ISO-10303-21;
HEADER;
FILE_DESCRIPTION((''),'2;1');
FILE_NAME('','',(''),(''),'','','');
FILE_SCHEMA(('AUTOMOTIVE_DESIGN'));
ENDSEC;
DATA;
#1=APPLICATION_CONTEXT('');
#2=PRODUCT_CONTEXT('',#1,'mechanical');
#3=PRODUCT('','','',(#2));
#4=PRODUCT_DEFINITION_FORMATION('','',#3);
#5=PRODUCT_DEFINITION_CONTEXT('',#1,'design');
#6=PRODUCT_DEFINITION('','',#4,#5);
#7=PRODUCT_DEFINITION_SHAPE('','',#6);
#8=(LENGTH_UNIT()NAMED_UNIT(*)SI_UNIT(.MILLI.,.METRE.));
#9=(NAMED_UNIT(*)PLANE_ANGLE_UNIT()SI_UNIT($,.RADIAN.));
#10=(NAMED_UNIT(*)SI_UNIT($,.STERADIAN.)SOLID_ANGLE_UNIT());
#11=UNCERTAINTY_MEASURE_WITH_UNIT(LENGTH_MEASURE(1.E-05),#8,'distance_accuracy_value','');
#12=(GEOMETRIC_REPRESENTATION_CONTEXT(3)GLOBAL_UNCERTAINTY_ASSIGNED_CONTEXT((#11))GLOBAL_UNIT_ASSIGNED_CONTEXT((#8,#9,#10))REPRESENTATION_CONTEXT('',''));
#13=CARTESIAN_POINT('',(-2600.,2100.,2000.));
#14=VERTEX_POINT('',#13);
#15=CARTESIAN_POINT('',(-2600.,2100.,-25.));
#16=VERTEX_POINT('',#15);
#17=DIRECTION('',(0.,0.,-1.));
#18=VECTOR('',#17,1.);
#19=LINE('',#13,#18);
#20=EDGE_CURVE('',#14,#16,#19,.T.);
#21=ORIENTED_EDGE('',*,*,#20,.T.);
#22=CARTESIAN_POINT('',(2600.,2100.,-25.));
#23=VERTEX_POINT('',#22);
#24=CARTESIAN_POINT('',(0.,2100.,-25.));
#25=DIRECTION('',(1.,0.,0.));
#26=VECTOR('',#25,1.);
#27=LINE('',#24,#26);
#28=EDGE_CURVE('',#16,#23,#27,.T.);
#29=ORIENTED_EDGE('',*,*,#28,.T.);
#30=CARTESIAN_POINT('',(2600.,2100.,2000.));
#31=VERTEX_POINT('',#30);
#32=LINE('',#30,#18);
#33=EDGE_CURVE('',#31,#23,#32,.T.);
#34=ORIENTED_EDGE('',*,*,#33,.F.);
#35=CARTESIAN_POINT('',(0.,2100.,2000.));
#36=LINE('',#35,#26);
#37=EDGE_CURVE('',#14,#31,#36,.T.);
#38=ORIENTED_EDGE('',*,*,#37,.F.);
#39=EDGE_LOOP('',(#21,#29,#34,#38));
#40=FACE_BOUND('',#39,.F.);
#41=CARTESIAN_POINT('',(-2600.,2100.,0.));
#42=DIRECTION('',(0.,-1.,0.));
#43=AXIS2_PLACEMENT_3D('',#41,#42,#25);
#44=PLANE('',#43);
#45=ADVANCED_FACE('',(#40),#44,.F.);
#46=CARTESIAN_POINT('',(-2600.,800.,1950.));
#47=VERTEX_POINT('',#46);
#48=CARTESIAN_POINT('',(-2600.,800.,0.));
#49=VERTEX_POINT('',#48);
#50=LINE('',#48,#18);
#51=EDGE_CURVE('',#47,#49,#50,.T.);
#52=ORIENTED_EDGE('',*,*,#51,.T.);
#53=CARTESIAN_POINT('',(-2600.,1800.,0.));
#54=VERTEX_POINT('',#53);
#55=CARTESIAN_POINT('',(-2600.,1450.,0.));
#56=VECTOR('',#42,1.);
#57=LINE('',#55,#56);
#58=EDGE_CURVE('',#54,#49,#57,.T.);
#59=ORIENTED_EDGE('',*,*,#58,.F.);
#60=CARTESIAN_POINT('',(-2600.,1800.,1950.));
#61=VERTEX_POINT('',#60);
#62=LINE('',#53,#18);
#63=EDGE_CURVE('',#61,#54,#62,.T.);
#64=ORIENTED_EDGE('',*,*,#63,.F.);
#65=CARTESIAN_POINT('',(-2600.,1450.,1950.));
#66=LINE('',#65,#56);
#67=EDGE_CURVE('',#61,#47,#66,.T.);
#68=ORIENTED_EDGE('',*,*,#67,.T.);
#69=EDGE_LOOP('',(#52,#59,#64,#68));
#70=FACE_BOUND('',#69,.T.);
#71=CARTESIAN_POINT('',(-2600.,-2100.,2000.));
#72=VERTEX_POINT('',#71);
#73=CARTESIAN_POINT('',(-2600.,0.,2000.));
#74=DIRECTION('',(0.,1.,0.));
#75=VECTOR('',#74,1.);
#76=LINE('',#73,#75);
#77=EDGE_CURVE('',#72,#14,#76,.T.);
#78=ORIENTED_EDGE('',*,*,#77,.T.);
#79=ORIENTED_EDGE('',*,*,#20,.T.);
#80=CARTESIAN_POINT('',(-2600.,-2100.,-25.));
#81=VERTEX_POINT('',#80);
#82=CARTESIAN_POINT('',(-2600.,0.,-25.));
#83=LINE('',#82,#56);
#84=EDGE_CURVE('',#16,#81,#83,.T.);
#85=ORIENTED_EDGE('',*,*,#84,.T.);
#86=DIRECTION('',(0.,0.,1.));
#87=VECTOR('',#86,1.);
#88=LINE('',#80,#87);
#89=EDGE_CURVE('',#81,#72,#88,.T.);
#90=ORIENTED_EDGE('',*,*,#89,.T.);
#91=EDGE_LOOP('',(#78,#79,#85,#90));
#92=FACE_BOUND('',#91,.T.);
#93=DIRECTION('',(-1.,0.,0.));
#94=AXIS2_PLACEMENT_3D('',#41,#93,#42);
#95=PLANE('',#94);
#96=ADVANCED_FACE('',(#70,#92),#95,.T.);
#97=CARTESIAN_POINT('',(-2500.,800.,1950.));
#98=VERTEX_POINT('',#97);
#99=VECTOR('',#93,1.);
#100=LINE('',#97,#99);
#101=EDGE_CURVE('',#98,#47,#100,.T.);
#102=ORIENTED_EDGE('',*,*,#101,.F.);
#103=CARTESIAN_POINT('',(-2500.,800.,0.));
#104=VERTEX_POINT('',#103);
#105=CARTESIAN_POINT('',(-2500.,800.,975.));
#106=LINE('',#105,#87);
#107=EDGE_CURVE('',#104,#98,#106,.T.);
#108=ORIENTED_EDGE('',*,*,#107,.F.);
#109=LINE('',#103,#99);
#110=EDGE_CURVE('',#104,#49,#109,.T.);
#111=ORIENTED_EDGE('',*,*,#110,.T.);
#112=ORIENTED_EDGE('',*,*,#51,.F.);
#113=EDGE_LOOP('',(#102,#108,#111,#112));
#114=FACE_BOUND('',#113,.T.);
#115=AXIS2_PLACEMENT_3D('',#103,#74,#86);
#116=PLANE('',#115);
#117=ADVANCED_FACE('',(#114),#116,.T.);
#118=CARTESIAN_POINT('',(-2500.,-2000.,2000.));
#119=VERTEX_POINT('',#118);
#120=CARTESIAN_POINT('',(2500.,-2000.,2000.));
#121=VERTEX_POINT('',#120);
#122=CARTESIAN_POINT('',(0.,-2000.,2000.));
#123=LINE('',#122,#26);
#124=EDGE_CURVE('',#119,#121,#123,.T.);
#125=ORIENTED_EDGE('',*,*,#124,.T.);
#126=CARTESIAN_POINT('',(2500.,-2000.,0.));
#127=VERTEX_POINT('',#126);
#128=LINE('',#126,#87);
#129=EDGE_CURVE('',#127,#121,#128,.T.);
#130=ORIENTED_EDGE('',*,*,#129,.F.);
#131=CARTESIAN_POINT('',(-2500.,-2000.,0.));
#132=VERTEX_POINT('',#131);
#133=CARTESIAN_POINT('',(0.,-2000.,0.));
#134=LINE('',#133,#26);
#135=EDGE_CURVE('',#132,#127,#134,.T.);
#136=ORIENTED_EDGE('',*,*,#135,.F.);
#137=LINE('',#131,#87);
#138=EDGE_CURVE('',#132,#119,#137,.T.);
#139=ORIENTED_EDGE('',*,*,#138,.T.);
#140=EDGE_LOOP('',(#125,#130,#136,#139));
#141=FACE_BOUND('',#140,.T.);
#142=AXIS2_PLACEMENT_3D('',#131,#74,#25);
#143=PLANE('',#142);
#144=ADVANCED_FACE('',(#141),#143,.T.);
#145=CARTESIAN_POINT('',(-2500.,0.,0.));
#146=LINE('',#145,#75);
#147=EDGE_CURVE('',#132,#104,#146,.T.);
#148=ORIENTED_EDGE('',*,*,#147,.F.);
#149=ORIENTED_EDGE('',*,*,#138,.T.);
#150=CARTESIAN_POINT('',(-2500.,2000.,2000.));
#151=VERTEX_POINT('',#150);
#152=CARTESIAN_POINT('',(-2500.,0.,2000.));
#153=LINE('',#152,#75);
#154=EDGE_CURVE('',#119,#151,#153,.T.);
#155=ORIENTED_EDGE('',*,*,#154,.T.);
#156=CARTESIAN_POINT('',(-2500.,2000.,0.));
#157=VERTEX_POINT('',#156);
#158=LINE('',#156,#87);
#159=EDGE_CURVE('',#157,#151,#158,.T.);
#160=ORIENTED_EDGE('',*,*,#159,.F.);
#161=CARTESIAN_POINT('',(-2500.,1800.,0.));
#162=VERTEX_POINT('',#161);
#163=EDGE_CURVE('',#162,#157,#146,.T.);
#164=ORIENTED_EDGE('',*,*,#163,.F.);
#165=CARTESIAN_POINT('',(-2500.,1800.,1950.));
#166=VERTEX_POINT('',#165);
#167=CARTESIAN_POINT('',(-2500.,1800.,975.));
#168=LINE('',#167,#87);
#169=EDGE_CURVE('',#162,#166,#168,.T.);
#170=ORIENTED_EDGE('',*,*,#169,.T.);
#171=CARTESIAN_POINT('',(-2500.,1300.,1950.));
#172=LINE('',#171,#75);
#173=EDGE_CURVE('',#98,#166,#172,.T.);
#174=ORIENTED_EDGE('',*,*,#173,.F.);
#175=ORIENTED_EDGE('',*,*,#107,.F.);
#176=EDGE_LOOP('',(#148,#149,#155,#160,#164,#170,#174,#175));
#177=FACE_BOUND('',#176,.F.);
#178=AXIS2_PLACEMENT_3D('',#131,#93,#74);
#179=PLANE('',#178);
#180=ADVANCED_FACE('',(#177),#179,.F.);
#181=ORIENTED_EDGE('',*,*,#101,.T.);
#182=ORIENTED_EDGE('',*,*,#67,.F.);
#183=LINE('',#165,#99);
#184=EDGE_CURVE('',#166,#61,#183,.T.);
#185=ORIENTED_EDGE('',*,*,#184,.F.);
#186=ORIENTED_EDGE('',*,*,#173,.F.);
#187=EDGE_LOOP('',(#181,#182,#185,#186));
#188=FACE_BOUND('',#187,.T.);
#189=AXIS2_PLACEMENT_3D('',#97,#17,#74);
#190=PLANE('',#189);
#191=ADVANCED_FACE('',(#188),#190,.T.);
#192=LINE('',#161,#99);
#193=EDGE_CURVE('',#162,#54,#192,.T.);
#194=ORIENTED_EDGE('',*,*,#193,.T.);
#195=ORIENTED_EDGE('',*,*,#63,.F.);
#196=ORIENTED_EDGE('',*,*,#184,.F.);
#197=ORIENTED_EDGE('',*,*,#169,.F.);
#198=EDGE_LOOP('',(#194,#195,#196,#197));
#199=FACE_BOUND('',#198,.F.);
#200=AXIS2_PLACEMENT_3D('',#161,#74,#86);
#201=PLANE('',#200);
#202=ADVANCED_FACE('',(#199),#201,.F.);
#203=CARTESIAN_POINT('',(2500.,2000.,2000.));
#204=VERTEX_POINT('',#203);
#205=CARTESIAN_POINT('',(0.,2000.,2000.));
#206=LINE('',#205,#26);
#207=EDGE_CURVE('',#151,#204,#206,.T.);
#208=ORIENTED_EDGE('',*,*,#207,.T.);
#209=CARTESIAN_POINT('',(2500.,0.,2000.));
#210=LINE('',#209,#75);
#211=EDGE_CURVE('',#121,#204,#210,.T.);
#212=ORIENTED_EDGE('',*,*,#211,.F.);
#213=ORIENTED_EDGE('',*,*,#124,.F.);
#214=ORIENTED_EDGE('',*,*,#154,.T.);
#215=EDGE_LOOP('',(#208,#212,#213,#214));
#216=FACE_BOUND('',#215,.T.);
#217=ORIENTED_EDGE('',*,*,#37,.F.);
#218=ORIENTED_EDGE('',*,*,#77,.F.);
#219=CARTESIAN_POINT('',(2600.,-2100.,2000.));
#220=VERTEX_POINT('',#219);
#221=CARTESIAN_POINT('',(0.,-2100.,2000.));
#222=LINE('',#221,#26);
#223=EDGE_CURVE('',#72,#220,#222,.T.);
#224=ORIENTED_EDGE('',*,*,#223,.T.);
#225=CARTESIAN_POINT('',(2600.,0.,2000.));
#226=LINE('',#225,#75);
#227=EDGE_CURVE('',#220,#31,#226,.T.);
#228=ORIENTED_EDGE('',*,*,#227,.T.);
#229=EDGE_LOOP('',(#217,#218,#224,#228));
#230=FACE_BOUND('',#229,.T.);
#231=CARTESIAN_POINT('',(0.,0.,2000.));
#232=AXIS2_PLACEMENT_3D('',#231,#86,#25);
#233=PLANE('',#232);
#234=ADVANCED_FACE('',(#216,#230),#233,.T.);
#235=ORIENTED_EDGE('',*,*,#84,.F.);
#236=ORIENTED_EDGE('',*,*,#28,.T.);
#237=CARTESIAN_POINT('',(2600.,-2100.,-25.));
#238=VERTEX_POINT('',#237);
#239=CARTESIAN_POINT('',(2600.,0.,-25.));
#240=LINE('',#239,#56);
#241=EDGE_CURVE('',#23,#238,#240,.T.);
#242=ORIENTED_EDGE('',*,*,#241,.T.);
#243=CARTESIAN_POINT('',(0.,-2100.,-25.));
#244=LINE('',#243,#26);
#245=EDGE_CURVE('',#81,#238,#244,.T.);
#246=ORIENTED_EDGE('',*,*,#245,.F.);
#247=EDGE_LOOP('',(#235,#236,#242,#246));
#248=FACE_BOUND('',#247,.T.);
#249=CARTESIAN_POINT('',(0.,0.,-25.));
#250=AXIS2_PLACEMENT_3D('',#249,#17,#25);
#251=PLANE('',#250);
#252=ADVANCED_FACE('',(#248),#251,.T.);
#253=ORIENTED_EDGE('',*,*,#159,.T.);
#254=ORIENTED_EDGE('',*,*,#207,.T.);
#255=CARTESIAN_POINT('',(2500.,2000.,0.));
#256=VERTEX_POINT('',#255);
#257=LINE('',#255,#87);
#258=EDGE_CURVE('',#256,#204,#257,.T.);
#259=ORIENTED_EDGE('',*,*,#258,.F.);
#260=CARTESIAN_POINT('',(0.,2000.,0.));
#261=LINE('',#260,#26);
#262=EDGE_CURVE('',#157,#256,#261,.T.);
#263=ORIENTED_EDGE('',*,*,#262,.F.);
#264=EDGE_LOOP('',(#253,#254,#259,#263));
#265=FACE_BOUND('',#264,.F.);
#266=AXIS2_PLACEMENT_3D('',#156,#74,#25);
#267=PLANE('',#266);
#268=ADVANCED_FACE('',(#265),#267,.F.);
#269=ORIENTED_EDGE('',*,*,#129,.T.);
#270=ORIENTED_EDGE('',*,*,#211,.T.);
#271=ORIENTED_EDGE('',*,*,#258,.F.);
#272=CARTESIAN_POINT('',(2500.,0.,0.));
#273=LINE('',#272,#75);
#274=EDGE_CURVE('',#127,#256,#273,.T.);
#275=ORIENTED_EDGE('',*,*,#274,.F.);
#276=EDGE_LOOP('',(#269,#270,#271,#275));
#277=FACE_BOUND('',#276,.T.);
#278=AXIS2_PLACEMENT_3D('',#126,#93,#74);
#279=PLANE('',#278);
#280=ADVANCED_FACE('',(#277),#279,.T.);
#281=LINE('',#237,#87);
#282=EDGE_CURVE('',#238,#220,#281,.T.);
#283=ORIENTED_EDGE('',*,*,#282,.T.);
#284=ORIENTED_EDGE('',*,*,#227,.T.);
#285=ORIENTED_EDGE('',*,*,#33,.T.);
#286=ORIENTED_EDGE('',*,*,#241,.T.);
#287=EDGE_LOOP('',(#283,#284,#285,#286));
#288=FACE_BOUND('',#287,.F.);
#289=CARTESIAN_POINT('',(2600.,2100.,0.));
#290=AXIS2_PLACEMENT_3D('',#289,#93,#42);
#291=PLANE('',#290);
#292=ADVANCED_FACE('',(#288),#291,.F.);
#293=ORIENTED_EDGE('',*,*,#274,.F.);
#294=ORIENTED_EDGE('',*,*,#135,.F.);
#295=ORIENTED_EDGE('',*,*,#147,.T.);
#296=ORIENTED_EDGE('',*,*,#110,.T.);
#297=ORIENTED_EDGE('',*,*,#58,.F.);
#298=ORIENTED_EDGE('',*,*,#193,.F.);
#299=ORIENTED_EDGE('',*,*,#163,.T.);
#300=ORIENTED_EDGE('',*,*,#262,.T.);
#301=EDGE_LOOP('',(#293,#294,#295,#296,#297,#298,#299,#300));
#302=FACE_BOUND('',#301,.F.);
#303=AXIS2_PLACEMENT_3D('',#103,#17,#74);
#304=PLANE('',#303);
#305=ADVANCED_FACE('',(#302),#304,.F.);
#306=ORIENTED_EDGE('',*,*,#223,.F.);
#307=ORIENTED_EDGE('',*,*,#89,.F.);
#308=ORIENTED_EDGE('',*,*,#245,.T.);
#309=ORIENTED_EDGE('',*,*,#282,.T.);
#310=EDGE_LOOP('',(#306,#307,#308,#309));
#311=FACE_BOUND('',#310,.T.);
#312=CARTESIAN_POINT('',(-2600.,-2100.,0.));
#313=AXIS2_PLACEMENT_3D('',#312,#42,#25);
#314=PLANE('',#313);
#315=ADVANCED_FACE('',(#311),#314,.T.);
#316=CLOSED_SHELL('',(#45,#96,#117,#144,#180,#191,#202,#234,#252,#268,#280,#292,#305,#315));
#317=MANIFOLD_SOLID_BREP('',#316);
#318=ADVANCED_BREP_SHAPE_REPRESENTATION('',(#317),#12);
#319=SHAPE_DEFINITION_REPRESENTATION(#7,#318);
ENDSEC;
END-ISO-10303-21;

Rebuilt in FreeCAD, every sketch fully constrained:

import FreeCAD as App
import Part
import Sketcher

V = App.Vector

doc = App.newDocument("Part")
params = doc.addObject("Spreadsheet::Sheet", "Params")
for row, (alias, value) in enumerate([
    ("sketch1_width", "5200 mm"),
    ("sketch1_width2", "5000 mm"),
    ("sketch1_height", "4200 mm"),
    ("sketch1_height2", "4000 mm"),
    ("pad1_length", "2000 mm"),
    ("sketch2_width", "5200 mm"),
    ("sketch2_height", "4200 mm"),
    ("pad2_length", "25 mm"),
    ("sketch3_width", "1000 mm"),
    ("sketch3_height", "1950 mm"),
    ("pocket1_length", "200 mm"),
], start=1):
    params.set(f"A{row}", alias)
    params.set(f"B{row}", "=" + value)
    params.setAlias(f"B{row}", alias)

body = doc.addObject("PartDesign::Body", "Body")

# Sketch on XY plane
sketch1 = body.newObject("Sketcher::SketchObject", "Sketch")
sketch1.AttachmentSupport = (doc.getObject("XY_Plane"), [""])
sketch1.MapMode = "FlatFace"
sketch1.addGeometry(Part.LineSegment(V(-2600, 2100, 0), V(-2600, -2100, 0)), False)
sketch1.addGeometry(Part.LineSegment(V(-2600, -2100, 0), V(2600, -2100, 0)), False)
sketch1.addGeometry(Part.LineSegment(V(2600, -2100, 0), V(2600, 2100, 0)), False)
sketch1.addGeometry(Part.LineSegment(V(2600, 2100, 0), V(-2600, 2100, 0)), False)
sketch1.addGeometry(Part.LineSegment(V(2500, -2000, 0), V(-2500, -2000, 0)), False)
sketch1.addGeometry(Part.LineSegment(V(-2500, -2000, 0), V(-2500, 2000, 0)), False)
sketch1.addGeometry(Part.LineSegment(V(-2500, 2000, 0), V(2500, 2000, 0)), False)
sketch1.addGeometry(Part.LineSegment(V(2500, 2000, 0), V(2500, -2000, 0)), False)
sketch1.addConstraint(Sketcher.Constraint("Coincident", 0, 2, 1, 1))
sketch1.addConstraint(Sketcher.Constraint("Coincident", 1, 2, 2, 1))
sketch1.addConstraint(Sketcher.Constraint("Coincident", 2, 2, 3, 1))
sketch1.addConstraint(Sketcher.Constraint("Coincident", 3, 2, 0, 1))
sketch1.addConstraint(Sketcher.Constraint("Coincident", 4, 2, 5, 1))
sketch1.addConstraint(Sketcher.Constraint("Coincident", 5, 2, 6, 1))
sketch1.addConstraint(Sketcher.Constraint("Coincident", 6, 2, 7, 1))
sketch1.addConstraint(Sketcher.Constraint("Coincident", 7, 2, 4, 1))
sketch1.addConstraint(Sketcher.Constraint("Vertical", 0))
sketch1.addConstraint(Sketcher.Constraint("Horizontal", 1))
sketch1.addConstraint(Sketcher.Constraint("Vertical", 2))
sketch1.addConstraint(Sketcher.Constraint("Horizontal", 3))
sketch1.addConstraint(Sketcher.Constraint("Horizontal", 4))
sketch1.addConstraint(Sketcher.Constraint("Vertical", 5))
sketch1.addConstraint(Sketcher.Constraint("Horizontal", 6))
sketch1.addConstraint(Sketcher.Constraint("Vertical", 7))
sketch1.addConstraint(Sketcher.Constraint("Symmetric", 0, 2, 2, 2, -1, 1))
sketch1.addConstraint(Sketcher.Constraint("Symmetric", 4, 2, 6, 2, -1, 1))
sketch1.addConstraint(Sketcher.Constraint("DistanceX", 1, 1, 1, 2, 5200.0))
sketch1.addConstraint(Sketcher.Constraint("DistanceX", 4, 2, 4, 1, 5000.0))
sketch1.addConstraint(Sketcher.Constraint("DistanceY", 0, 2, 0, 1, 4200.0))
sketch1.addConstraint(Sketcher.Constraint("DistanceY", 5, 1, 5, 2, 4000.0))
sketch1.setExpression("Constraints[18]", "Params.sketch1_width")
sketch1.setExpression("Constraints[19]", "Params.sketch1_width2")
sketch1.setExpression("Constraints[20]", "Params.sketch1_height")
sketch1.setExpression("Constraints[21]", "Params.sketch1_height2")
pad1 = body.newObject("PartDesign::Pad", "Pad")
pad1.Profile = sketch1
pad1.setExpression("Length", "Params.pad1_length")

# Sketch on XY plane
sketch2 = body.newObject("Sketcher::SketchObject", "Sketch001")
sketch2.AttachmentSupport = (doc.getObject("XY_Plane"), [""])
sketch2.MapMode = "FlatFace"
sketch2.addGeometry(Part.LineSegment(V(-2600, -2100, 0), V(-2600, 2100, 0)), False)
sketch2.addGeometry(Part.LineSegment(V(-2600, 2100, 0), V(2600, 2100, 0)), False)
sketch2.addGeometry(Part.LineSegment(V(2600, 2100, 0), V(2600, -2100, 0)), False)
sketch2.addGeometry(Part.LineSegment(V(2600, -2100, 0), V(-2600, -2100, 0)), False)
sketch2.addConstraint(Sketcher.Constraint("Coincident", 0, 2, 1, 1))
sketch2.addConstraint(Sketcher.Constraint("Coincident", 1, 2, 2, 1))
sketch2.addConstraint(Sketcher.Constraint("Coincident", 2, 2, 3, 1))
sketch2.addConstraint(Sketcher.Constraint("Coincident", 3, 2, 0, 1))
sketch2.addConstraint(Sketcher.Constraint("Vertical", 0))
sketch2.addConstraint(Sketcher.Constraint("Horizontal", 1))
sketch2.addConstraint(Sketcher.Constraint("Vertical", 2))
sketch2.addConstraint(Sketcher.Constraint("Horizontal", 3))
sketch2.addConstraint(Sketcher.Constraint("Symmetric", 0, 2, 2, 2, -1, 1))
sketch2.addConstraint(Sketcher.Constraint("DistanceX", 1, 1, 1, 2, 5200.0))
sketch2.addConstraint(Sketcher.Constraint("DistanceY", 0, 1, 0, 2, 4200.0))
sketch2.setExpression("Constraints[9]", "Params.sketch2_width")
sketch2.setExpression("Constraints[10]", "Params.sketch2_height")
pad2 = body.newObject("PartDesign::Pad", "Pad001")
pad2.Profile = sketch2
pad2.setExpression("Length", "Params.pad2_length")
pad2.Reversed = True

# Sketch on YZ plane
sketch3 = body.newObject("Sketcher::SketchObject", "Sketch002")
sketch3.AttachmentSupport = (doc.getObject("YZ_Plane"), [""])
sketch3.MapMode = "FlatFace"
sketch3.AttachmentOffset = App.Placement(V(0, 0, -2500), App.Rotation())
sketch3.addGeometry(Part.LineSegment(V(800, 1950, 0), V(800, 0, 0)), False)
sketch3.addGeometry(Part.LineSegment(V(800, 0, 0), V(1800, 0, 0)), False)
sketch3.addGeometry(Part.LineSegment(V(1800, 0, 0), V(1800, 1950, 0)), False)
sketch3.addGeometry(Part.LineSegment(V(1800, 1950, 0), V(800, 1950, 0)), False)
sketch3.addConstraint(Sketcher.Constraint("Coincident", 0, 2, 1, 1))
sketch3.addConstraint(Sketcher.Constraint("Coincident", 1, 2, 2, 1))
sketch3.addConstraint(Sketcher.Constraint("Coincident", 2, 2, 3, 1))
sketch3.addConstraint(Sketcher.Constraint("Coincident", 3, 2, 0, 1))
sketch3.addConstraint(Sketcher.Constraint("Vertical", 0))
sketch3.addConstraint(Sketcher.Constraint("Horizontal", 1))
sketch3.addConstraint(Sketcher.Constraint("Vertical", 2))
sketch3.addConstraint(Sketcher.Constraint("Horizontal", 3))
sketch3.addConstraint(Sketcher.Constraint("PointOnObject", 0, 2, -1))
sketch3.addConstraint(Sketcher.Constraint("DistanceX", 1, 1, 1, 2, 1000.0))
sketch3.addConstraint(Sketcher.Constraint("DistanceY", 0, 2, 0, 1, 1950.0))
sketch3.addConstraint(Sketcher.Constraint("DistanceX", -1, 1, 0, 2, 800.0))
sketch3.setExpression("Constraints[9]", "Params.sketch3_width")
sketch3.setExpression("Constraints[10]", "Params.sketch3_height")
pocket1 = body.newObject("PartDesign::Pocket", "Pocket")
pocket1.Profile = sketch3
pocket1.setExpression("Length", "Params.pocket1_length")

doc.recompute()
